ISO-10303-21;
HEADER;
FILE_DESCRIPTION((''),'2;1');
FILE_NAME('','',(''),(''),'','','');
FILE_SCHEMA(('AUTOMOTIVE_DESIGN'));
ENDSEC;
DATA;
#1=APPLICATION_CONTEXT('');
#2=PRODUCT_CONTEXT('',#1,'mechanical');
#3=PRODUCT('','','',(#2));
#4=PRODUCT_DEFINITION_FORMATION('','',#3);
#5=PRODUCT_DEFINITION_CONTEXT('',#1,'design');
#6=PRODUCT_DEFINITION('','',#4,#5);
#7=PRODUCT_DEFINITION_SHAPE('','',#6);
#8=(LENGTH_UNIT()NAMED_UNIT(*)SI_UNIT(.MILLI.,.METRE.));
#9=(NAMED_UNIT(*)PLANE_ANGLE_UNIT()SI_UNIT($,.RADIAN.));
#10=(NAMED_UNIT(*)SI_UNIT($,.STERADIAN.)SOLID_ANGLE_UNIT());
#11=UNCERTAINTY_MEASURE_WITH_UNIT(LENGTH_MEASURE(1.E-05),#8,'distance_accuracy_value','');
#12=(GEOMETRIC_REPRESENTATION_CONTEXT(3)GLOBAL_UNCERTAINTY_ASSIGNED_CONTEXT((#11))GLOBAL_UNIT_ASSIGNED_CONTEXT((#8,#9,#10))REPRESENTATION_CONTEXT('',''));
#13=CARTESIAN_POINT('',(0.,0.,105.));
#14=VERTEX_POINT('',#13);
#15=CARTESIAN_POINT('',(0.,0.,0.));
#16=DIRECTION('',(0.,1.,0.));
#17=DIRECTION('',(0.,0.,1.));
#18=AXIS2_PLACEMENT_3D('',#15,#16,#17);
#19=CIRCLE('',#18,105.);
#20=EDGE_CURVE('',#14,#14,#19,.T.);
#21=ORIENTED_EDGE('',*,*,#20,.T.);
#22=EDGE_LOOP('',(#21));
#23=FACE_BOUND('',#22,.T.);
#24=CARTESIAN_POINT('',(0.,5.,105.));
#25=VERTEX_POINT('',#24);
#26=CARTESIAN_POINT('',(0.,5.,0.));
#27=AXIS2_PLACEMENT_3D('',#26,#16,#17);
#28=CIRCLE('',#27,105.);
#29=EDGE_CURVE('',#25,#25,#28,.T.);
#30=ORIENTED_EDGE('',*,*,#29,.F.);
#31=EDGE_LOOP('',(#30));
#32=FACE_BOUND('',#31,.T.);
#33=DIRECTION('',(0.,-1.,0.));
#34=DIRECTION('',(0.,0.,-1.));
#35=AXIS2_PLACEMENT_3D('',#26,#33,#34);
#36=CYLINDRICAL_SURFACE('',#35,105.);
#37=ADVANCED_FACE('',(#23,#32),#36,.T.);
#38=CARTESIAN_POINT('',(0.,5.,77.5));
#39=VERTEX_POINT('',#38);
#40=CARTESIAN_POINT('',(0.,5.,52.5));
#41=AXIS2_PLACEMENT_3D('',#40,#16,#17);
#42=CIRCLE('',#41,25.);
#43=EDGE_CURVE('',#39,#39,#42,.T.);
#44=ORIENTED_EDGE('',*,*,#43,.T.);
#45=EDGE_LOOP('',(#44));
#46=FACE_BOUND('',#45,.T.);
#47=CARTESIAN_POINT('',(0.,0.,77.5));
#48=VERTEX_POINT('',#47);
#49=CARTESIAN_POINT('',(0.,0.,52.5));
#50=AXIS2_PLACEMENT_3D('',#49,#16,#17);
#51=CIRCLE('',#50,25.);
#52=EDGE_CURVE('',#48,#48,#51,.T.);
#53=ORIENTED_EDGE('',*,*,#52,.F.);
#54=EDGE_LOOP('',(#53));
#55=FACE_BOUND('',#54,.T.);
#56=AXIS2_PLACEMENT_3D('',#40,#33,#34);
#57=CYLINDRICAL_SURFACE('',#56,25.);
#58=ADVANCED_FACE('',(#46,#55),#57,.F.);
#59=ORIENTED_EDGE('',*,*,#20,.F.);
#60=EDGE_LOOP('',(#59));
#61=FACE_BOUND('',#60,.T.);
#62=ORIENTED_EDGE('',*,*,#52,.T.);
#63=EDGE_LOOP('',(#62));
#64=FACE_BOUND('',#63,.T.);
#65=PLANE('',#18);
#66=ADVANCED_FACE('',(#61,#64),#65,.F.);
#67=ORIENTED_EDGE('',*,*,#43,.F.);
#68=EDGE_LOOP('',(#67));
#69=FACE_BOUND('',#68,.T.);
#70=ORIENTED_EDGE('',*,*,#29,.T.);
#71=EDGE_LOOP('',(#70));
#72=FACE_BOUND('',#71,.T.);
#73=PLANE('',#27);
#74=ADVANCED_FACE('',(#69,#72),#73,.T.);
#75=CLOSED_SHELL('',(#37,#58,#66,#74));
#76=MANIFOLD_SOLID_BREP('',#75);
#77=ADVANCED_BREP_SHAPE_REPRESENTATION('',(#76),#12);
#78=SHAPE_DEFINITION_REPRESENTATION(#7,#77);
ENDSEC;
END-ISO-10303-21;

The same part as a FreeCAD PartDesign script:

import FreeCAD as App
import Part
import Sketcher
Q = App.Units.Quantity

doc = App.newDocument("Part")
params = doc.addObject("Spreadsheet::Sheet", "Params")
for row, (alias, value) in enumerate([
    ("sketch1_diameter", "210 mm"),
    ("sketch1_diameter2", "50 mm"),
    ("pad1_length", "5 mm"),
], start=1):
    params.set(f"A{row}", alias)
    params.set(f"B{row}", "=" + value)
    params.setAlias(f"B{row}", alias)

body = doc.addObject("PartDesign::Body", "Body")

sketch1 = body.newObject("Sketcher::SketchObject", "Sketch")
sketch1.AttachmentSupport = (doc.getObject("XZ_Plane"), [""])
sketch1.MapMode = "FlatFace"
sketch1.addGeometry([
    Part.Circle(App.Vector(0, 0, 0), App.Vector(0, 0, 1), 105),
    Part.Circle(App.Vector(0, 52, 0), App.Vector(0, 0, 1), 25),
], False)
sketch1.addConstraint([
    Sketcher.Constraint("Coincident", 0, 3, -1, 1),
    Sketcher.Constraint("PointOnObject", 1, 3, -2),
    Sketcher.Constraint("Diameter", 0, Q("210 mm")),
    Sketcher.Constraint("Diameter", 1, Q("50 mm")),
    Sketcher.Constraint("DistanceY", -1, 1, 1, 3, Q("52.5 mm")),
])
sketch1.setExpression("Constraints[2]", "Params.sketch1_diameter")
sketch1.setExpression("Constraints[3]", "Params.sketch1_diameter2")
pad1 = body.newObject("PartDesign::Pad", "Pad")
pad1.Profile = sketch1
pad1.setExpression("Length", "Params.pad1_length")
pad1.Reversed = True

doc.recompute()
